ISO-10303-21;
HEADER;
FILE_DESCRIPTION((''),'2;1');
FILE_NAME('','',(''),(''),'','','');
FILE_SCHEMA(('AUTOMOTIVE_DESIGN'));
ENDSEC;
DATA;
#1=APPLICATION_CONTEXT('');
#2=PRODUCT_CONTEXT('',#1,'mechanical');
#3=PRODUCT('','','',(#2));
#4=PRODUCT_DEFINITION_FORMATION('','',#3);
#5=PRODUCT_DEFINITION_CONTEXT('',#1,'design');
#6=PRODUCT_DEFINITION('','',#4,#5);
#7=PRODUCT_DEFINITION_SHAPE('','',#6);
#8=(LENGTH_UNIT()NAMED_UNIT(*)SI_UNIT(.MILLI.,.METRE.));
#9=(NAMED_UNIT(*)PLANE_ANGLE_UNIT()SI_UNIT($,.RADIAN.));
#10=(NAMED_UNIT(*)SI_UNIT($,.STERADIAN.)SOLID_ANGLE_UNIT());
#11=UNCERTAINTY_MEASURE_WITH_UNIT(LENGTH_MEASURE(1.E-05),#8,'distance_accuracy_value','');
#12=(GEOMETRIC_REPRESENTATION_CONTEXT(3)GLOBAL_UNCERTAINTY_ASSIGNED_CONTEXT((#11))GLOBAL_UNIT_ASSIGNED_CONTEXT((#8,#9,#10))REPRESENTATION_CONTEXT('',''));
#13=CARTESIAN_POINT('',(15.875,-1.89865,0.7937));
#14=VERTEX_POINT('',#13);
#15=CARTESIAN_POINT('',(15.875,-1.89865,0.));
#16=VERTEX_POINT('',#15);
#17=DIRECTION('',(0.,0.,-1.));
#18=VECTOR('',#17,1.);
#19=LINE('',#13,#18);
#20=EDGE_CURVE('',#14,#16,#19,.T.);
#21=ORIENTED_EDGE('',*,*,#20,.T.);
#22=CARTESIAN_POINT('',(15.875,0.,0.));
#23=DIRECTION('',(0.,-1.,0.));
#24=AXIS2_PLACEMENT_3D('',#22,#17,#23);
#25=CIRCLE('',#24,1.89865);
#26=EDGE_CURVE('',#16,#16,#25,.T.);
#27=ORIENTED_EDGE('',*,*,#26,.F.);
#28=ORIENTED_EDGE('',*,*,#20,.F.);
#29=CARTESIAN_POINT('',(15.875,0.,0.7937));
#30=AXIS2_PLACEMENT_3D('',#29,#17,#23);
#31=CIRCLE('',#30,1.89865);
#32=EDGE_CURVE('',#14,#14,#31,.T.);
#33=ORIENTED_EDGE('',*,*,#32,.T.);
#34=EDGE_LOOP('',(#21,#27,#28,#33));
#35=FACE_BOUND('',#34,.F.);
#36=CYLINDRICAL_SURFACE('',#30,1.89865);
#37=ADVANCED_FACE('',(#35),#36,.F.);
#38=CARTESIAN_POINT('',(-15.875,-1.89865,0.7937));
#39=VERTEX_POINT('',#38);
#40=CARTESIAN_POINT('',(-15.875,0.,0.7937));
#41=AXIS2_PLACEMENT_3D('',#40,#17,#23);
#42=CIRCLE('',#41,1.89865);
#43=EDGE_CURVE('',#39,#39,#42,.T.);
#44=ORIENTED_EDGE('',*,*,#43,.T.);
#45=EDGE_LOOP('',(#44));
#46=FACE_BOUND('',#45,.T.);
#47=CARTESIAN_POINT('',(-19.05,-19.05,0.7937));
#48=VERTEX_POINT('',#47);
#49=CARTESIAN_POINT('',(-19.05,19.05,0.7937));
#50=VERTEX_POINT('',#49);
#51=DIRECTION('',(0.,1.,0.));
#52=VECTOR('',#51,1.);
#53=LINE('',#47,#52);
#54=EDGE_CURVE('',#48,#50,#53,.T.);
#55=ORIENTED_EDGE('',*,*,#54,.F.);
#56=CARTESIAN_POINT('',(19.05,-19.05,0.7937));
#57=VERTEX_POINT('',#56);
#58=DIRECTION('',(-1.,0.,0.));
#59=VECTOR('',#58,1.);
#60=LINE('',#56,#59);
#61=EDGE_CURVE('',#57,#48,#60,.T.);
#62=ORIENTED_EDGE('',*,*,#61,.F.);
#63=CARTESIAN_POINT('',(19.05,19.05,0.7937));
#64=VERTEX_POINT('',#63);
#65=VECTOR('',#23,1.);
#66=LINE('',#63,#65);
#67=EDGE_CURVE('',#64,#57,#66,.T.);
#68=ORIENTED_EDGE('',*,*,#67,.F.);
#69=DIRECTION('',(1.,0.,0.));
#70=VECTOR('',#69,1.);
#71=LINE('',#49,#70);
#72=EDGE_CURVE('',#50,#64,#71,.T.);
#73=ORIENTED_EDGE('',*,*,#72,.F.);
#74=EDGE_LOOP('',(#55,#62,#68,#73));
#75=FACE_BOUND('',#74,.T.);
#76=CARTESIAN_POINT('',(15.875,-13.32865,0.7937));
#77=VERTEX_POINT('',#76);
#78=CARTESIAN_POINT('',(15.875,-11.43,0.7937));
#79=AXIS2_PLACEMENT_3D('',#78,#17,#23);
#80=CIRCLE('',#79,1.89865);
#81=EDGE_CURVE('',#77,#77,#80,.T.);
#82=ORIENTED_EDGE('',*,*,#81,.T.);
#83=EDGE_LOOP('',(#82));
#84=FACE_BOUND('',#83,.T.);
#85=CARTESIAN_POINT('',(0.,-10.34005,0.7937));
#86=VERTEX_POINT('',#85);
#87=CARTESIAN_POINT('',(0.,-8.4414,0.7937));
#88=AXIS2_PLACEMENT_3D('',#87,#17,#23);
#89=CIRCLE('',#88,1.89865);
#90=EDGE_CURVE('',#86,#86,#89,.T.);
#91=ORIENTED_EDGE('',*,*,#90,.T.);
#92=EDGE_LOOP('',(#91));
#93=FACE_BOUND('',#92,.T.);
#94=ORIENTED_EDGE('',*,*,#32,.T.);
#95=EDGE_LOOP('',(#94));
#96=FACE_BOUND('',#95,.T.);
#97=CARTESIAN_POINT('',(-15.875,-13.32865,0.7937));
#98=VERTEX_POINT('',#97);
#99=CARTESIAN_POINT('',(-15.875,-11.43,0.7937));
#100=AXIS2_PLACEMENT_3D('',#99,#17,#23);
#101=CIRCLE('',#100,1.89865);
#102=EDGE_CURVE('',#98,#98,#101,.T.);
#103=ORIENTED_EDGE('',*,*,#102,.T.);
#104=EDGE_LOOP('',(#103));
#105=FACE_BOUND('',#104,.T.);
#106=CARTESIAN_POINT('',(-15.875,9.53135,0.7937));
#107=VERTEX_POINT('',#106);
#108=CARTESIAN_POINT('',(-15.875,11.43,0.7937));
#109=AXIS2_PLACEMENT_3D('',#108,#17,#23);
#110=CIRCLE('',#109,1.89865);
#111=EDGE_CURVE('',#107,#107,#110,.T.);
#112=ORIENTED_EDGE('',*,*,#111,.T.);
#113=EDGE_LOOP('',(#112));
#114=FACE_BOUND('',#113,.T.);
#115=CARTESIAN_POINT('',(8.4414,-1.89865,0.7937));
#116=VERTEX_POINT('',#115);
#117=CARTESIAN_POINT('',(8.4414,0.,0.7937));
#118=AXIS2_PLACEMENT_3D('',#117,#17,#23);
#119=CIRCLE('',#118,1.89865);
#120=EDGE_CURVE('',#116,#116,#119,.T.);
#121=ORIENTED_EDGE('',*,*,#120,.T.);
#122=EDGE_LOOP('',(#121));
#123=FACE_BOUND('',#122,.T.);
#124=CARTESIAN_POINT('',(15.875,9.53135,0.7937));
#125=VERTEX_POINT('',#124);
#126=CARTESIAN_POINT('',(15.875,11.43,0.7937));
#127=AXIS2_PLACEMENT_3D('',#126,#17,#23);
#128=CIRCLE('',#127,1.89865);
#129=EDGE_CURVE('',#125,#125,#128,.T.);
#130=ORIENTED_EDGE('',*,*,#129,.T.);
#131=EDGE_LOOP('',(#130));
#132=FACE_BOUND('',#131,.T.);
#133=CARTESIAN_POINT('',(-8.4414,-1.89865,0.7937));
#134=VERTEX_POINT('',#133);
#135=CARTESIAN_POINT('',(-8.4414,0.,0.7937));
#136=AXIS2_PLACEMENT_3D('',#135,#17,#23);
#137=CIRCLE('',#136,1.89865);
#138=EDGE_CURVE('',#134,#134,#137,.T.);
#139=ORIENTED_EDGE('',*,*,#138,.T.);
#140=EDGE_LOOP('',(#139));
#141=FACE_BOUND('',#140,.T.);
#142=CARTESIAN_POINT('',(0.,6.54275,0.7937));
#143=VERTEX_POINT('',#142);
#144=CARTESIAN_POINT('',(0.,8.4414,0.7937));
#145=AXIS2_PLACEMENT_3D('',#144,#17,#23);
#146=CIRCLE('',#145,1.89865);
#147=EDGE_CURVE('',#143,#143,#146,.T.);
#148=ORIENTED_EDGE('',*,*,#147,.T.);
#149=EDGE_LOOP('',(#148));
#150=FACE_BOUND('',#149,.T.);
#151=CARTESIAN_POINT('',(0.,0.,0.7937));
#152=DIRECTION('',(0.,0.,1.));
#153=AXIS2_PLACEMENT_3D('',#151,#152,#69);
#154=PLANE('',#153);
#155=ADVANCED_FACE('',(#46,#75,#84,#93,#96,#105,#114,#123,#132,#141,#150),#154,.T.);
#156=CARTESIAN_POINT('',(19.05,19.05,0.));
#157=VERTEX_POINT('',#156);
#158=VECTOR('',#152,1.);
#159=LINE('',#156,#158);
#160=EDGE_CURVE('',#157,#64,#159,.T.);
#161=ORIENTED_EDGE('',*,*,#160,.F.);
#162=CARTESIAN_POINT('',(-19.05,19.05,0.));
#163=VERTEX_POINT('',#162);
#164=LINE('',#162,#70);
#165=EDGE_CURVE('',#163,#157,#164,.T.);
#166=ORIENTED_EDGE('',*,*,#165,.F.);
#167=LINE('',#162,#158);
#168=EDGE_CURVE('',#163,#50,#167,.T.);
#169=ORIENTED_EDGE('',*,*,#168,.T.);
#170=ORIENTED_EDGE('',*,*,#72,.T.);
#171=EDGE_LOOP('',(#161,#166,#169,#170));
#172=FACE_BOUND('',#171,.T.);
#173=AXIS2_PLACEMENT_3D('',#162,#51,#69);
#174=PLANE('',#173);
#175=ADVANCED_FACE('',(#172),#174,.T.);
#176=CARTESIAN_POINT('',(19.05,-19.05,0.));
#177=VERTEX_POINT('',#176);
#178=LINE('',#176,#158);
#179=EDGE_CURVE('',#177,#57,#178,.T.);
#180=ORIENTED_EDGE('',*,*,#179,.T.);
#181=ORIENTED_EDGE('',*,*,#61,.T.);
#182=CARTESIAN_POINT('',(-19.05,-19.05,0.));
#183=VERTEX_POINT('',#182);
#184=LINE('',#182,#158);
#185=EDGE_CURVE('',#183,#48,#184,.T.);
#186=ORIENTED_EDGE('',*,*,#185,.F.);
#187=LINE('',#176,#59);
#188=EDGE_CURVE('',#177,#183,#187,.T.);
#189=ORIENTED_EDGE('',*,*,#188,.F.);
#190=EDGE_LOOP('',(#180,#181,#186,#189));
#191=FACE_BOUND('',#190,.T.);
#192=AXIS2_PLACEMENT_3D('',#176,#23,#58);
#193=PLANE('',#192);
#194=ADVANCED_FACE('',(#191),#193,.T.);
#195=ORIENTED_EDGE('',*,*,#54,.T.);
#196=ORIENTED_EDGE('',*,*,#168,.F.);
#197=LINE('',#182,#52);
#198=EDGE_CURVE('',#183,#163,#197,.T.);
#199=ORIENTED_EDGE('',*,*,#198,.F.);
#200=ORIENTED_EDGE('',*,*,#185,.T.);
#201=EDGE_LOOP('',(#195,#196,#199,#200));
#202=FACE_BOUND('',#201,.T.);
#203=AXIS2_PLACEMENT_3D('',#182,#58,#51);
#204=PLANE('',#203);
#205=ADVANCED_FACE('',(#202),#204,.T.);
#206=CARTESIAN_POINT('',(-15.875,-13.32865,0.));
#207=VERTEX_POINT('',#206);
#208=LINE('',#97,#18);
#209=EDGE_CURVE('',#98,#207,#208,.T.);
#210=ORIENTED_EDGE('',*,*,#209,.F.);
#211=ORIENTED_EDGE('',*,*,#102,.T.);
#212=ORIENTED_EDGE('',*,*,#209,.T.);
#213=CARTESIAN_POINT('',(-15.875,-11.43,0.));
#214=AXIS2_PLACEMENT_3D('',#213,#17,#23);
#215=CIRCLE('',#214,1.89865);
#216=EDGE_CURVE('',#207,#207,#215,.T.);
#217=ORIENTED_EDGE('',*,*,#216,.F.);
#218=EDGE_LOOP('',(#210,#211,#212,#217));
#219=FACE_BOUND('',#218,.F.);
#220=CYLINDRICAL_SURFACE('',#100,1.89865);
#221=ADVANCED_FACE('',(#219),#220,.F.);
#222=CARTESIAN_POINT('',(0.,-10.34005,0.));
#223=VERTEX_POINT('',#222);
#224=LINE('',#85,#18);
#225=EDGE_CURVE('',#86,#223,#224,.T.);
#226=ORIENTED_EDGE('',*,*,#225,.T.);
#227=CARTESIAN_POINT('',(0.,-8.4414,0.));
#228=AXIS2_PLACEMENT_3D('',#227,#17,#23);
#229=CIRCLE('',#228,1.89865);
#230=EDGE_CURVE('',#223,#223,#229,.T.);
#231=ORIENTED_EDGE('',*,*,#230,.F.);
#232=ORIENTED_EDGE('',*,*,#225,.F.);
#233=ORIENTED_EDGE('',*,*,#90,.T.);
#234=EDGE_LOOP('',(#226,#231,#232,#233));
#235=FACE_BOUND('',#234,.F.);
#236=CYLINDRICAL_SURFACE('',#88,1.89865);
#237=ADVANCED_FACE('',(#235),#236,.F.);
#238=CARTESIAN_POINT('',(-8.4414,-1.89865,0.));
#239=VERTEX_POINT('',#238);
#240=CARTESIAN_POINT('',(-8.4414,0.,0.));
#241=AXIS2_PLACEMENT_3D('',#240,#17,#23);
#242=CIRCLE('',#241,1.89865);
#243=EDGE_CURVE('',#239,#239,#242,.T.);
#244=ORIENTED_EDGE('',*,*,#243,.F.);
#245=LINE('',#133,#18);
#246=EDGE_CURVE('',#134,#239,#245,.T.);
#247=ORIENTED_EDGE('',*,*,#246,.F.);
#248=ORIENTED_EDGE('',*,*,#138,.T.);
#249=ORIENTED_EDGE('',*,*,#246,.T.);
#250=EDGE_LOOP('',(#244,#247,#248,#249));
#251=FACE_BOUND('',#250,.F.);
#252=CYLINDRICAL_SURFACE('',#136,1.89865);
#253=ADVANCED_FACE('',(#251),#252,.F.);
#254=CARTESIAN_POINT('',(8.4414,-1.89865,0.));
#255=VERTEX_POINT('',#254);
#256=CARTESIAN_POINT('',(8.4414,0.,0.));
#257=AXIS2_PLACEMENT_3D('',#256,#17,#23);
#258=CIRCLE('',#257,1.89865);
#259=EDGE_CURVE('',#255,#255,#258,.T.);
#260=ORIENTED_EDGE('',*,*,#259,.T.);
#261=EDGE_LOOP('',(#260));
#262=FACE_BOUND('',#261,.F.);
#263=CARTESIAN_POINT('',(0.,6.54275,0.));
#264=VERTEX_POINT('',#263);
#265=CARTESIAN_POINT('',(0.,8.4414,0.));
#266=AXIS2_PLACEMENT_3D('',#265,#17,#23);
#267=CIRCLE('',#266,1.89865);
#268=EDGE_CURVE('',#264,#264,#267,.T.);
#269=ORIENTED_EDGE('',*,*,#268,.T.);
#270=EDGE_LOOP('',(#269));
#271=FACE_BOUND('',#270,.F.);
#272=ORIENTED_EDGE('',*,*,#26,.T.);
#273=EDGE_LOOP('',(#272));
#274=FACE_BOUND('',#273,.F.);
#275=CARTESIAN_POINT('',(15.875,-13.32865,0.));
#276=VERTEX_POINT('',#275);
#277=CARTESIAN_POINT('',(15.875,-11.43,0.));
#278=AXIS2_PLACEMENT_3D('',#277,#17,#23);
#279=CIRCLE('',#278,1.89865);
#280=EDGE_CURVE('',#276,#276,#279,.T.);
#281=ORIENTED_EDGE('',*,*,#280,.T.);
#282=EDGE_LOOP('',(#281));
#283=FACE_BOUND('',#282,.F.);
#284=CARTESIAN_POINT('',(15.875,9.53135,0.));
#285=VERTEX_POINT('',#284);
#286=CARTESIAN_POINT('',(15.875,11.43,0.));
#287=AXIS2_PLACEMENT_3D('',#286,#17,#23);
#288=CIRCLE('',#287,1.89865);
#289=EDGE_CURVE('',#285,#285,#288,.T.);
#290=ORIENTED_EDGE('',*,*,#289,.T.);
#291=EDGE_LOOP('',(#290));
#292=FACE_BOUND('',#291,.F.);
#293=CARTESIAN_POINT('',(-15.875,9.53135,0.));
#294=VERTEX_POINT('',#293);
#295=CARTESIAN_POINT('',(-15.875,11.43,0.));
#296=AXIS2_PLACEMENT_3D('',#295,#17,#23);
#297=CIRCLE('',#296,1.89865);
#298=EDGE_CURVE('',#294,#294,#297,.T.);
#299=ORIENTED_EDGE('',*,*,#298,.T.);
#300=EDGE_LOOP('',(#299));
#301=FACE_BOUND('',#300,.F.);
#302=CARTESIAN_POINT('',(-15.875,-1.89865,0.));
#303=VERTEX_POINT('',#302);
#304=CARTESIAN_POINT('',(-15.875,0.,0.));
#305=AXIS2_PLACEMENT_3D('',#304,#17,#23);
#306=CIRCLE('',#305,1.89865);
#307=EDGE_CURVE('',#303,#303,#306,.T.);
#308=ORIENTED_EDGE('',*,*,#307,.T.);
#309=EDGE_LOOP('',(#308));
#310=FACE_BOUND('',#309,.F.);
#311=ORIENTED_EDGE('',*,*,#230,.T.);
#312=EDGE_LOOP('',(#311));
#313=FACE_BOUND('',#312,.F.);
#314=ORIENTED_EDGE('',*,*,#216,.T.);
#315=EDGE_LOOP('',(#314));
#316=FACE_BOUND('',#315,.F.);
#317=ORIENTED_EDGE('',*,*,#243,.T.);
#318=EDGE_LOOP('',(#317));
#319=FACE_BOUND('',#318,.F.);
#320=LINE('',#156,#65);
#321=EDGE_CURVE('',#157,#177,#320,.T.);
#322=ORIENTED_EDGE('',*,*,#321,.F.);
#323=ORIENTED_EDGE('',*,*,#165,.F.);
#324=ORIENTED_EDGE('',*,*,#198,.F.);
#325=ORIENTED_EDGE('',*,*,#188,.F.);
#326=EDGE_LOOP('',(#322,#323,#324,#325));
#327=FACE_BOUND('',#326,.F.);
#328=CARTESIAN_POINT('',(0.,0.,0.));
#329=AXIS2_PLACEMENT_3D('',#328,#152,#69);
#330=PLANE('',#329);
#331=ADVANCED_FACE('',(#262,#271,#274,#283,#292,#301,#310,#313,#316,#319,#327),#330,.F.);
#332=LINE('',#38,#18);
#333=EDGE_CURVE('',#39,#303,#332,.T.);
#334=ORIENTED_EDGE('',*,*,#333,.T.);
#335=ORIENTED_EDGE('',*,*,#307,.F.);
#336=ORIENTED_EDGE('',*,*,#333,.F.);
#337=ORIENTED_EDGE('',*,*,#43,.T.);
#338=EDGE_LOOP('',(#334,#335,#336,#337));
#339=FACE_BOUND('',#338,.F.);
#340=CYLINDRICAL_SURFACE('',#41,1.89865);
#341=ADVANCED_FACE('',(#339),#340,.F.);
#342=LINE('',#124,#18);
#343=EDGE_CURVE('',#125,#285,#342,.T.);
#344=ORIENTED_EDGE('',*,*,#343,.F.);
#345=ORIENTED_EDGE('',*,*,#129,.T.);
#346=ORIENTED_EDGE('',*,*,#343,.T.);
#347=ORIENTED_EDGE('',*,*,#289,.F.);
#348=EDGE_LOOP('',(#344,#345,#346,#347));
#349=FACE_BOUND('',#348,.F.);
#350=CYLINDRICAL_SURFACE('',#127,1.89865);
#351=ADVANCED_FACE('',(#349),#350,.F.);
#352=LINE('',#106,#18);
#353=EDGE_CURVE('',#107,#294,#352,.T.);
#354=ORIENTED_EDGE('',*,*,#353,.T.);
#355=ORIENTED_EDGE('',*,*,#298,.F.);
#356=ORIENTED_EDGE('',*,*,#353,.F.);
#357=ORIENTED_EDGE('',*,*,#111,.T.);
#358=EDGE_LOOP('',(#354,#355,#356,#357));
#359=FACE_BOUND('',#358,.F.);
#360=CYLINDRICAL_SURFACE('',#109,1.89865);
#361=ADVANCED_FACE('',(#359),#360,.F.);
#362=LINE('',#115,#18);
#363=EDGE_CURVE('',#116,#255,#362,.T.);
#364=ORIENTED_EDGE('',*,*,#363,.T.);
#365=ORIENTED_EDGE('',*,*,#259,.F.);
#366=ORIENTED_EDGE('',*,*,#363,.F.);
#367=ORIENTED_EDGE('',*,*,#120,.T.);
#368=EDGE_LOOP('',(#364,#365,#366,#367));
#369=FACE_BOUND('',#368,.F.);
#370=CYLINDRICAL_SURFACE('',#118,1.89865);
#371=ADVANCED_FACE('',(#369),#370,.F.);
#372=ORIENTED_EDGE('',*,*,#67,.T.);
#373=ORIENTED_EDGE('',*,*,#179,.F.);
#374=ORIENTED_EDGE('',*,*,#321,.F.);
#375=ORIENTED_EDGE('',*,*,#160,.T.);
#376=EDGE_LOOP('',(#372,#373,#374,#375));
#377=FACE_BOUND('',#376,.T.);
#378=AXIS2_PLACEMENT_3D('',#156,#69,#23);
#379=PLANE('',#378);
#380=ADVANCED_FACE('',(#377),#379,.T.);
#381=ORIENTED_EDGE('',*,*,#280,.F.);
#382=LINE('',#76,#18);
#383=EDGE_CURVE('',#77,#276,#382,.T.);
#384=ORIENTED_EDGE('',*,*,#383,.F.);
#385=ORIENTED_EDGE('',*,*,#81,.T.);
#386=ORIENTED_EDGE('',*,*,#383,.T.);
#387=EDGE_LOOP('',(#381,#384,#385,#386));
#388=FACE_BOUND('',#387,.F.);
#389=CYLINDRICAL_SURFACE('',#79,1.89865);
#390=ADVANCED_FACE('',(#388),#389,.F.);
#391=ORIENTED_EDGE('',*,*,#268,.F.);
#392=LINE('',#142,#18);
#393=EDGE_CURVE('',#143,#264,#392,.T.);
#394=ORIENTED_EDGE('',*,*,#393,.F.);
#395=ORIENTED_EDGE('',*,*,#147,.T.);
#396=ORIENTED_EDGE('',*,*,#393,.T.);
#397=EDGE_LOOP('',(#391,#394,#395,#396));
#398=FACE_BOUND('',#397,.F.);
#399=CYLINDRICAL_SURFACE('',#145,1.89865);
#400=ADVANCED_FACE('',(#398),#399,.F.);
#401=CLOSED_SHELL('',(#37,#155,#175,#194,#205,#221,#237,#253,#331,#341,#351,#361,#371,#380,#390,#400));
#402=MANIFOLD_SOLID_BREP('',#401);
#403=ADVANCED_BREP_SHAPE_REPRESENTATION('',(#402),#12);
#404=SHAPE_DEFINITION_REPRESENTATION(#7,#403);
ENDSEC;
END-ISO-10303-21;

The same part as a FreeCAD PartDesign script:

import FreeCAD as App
import Part
import Sketcher
Q = App.Units.Quantity

doc = App.newDocument("Part")
body = doc.addObject("PartDesign::Body", "Body")

sketch1 = doc.addObject("Sketcher::SketchObject", "Sketch")
body.addObject(sketch1)
sketch1.AttachmentSupport = (doc.XY_Plane, [""])
sketch1.MapMode = "FlatFace"
sketch1.addGeometry([
    Part.LineSegment(App.Vector(-19.05, -19.05, 0), App.Vector(19.05, -19.05, 0)),
    Part.LineSegment(App.Vector(19.05, -19.05, 0), App.Vector(19.05, 19.05, 0)),
    Part.LineSegment(App.Vector(19.05, 19.05, 0), App.Vector(-19.05, 19.05, 0)),
    Part.LineSegment(App.Vector(-19.05, 19.05, 0), App.Vector(-19.05, -19.05, 0)),
], False)
sketch1.addConstraint([
    Sketcher.Constraint("Coincident", 0, 2, 1, 1),
    Sketcher.Constraint("Coincident", 1, 2, 2, 1),
    Sketcher.Constraint("Coincident", 2, 2, 3, 1),
    Sketcher.Constraint("Coincident", 3, 2, 0, 1),
    Sketcher.Constraint("Horizontal", 0),
    Sketcher.Constraint("Vertical", 1),
    Sketcher.Constraint("Horizontal", 2),
    Sketcher.Constraint("Vertical", 3),
    Sketcher.Constraint("Symmetric", 0, 2, 2, 2, -1, 1),
    Sketcher.Constraint("Equal", 2, 1),
    Sketcher.Constraint("DistanceX", 0, 1, 0, 2, Q("1.5 in")),
])
pad1 = doc.addObject("PartDesign::Pad", "Pad")
body.addObject(pad1)
pad1.Profile = sketch1
pad1.Length = Q("0.031248 in")

sketch2 = doc.addObject("Sketcher::SketchObject", "Sketch001")
body.addObject(sketch2)
sketch2.AttachmentSupport = (doc.XY_Plane, [""])
sketch2.MapMode = "FlatFace"
sketch2.AttachmentOffset = App.Placement(App.Vector(0, 0, 0.031248 * 25.4), App.Rotation())
sketch2.addGeometry([
    Part.Circle(App.Vector(-15.875, 11.43, 0), App.Vector(0, 0, 1), 1.89865),
    Part.Circle(App.Vector(-15.875, 0, 0), App.Vector(0, 0, 1), 1.89865),
    Part.Circle(App.Vector(-15.875, -11.43, 0), App.Vector(0, 0, 1), 1.89865),
    Part.Circle(App.Vector(15.875, -11.43, 0), App.Vector(0, 0, 1), 1.89865),
    Part.Circle(App.Vector(15.875, 0, 0), App.Vector(0, 0, 1), 1.89865),
    Part.Circle(App.Vector(15.875, 11.43, 0), App.Vector(0, 0, 1), 1.89865),
    Part.Circle(App.Vector(0, 8.4414, 0), App.Vector(0, 0, 1), 1.89865),
    Part.Circle(App.Vector(-8.4414, 0, 0), App.Vector(0, 0, 1), 1.89865),
    Part.Circle(App.Vector(0, -8.4414, 0), App.Vector(0, 0, 1), 1.89865),
    Part.Circle(App.Vector(8.4414, 0, 0), App.Vector(0, 0, 1), 1.89865),
], False)
sketch2.addConstraint([
    Sketcher.Constraint("Equal", 0, 1),
    Sketcher.Constraint("Equal", 1, 2),
    Sketcher.Constraint("Equal", 2, 3),
    Sketcher.Constraint("Equal", 3, 4),
    Sketcher.Constraint("Equal", 4, 5),
    Sketcher.Constraint("Equal", 5, 6),
    Sketcher.Constraint("Equal", 6, 7),
    Sketcher.Constraint("Equal", 7, 8),
    Sketcher.Constraint("Equal", 8, 9),
    Sketcher.Constraint("Symmetric", 0, 3, 3, 3, -1, 1),
    Sketcher.Constraint("Symmetric", 1, 3, 4, 3, -1, 1),
    Sketcher.Constraint("Symmetric", 2, 3, 5, 3, -1, 1),
    Sketcher.Constraint("Symmetric", 6, 3, 8, 3, -1, 1),
    Sketcher.Constraint("Symmetric", 7, 3, 9, 3, -1, 1),
    Sketcher.Constraint("Symmetric", 2, 3, 3, 3, -2),
    Sketcher.Constraint("PointOnObject", 1, 3, -1),
    Sketcher.Constraint("PointOnObject", 6, 3, -2),
    Sketcher.Constraint("PointOnObject", 7, 3, -1),
    Sketcher.Constraint("Vertical", 0, 3, 1, 3),
    Sketcher.Constraint("Diameter", 0, Q("0.1495 in")),
    Sketcher.Constraint("DistanceY", 2, 3, 0, 3, Q("0.9 in")),
    Sketcher.Constraint("DistanceX", 2, 3, 3, 3, Q("1.25 in")),
    Sketcher.Constraint("DistanceY", -1, 1, 6, 3, Q("8.4414 mm")),
    Sketcher.Constraint("DistanceX", 7, 3, -1, 1, Q("8.4414 mm")),
])
doc.recompute()
hole = doc.addObject("PartDesign::Hole", "Hole")
body.addObject(hole)
hole.Profile = sketch2
hole.ThreadType = "None"
hole.Diameter = Q("0.1495 in")
hole.DepthType = "ThroughAll"

doc.recompute()
